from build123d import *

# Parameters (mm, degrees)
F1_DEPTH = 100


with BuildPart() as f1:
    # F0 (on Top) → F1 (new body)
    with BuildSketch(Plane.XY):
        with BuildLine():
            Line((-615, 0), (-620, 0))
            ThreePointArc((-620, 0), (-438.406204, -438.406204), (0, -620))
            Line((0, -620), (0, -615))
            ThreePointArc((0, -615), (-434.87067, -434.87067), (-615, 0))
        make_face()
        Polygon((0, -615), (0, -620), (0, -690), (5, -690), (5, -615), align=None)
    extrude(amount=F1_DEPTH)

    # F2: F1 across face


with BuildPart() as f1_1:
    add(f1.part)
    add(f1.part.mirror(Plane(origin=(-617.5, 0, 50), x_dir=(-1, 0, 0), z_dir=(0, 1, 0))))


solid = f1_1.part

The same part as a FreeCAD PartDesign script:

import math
import FreeCAD as App
import Part
import Sketcher
from FreeCAD import Vector

doc = App.newDocument("Part")
body = doc.addObject("PartDesign::Body", "Body")

sketch1 = body.newObject("Sketcher::SketchObject", "Sketch")
sketch1.AttachmentSupport = (doc.getObject("XY_Plane"), [""])
sketch1.MapMode = "FlatFace"
sketch1.addGeometry([
    Part.LineSegment(Vector(-615, 0, 0), Vector(-620, 0, 0)),
    Part.ArcOfCircle(Part.Circle(Vector(0, 0, 0), Vector(0, 0, 1), 620), math.radians(-180), math.radians(-90)),
    Part.LineSegment(Vector(0, -620, 0), Vector(0, -690, 0)),
    Part.LineSegment(Vector(0, -690, 0), Vector(5, -690, 0)),
    Part.LineSegment(Vector(5, -690, 0), Vector(5, -615, 0)),
    Part.LineSegment(Vector(5, -615, 0), Vector(0, -615, 0)),
    Part.ArcOfCircle(Part.Circle(Vector(0, 0, 0), Vector(0, 0, 1), 615), math.radians(-180), math.radians(-90)),
], False)
sketch1.addConstraint([
    Sketcher.Constraint("Coincident", 0, 2, 1, 1),
    Sketcher.Constraint("Coincident", 1, 2, 2, 1),
    Sketcher.Constraint("Coincident", 2, 2, 3, 1),
    Sketcher.Constraint("Coincident", 3, 2, 4, 1),
    Sketcher.Constraint("Coincident", 4, 2, 5, 1),
    Sketcher.Constraint("Tangent", 5, 2, 6, 2),
    Sketcher.Constraint("Coincident", 6, 1, 0, 1),
    Sketcher.Constraint("Horizontal", 0),
    Sketcher.Constraint("Vertical", 2),
    Sketcher.Constraint("Horizontal", 3),
    Sketcher.Constraint("Vertical", 4),
    Sketcher.Constraint("Horizontal", 5),
    Sketcher.Constraint("Coincident", 1, 3, -1, 1),
    Sketcher.Constraint("Coincident", 6, 3, -1, 1),
    Sketcher.Constraint("PointOnObject", 0, 2, -1),
    Sketcher.Constraint("PointOnObject", 2, 2, -2),
    Sketcher.Constraint("Equal", 0, 3),
    Sketcher.Constraint("Radius", 1, 620.000001),
    Sketcher.Constraint("Radius", 6, 615.000001),
    Sketcher.Constraint("DistanceY", 2, 2, 2, 1, 70.0),
])
pad1 = body.newObject("PartDesign::Pad", "Pad")
pad1.Profile = sketch1
pad1.Length = 100
body2 = doc.addObject("PartDesign::Body", "Body001")
doc.recompute()

body2.BaseFeature = body
doc.recompute()

mirroring = doc.addObject("Part::Mirroring", "Mirroring")
mirroring.Source = body
mirroring.Base = Vector(-617.5, 0, 50)
mirroring.Normal = Vector(0, 1, 0)
body3 = doc.addObject("PartDesign::Body", "Body002")
body3.BaseFeature = mirroring
boolean = body2.newObject("PartDesign::Boolean", "Boolean")
boolean.Type = "Fuse"
boolean.addObjects([body3])
doc.recompute()
mirroring.Visibility = False

doc.recompute()
